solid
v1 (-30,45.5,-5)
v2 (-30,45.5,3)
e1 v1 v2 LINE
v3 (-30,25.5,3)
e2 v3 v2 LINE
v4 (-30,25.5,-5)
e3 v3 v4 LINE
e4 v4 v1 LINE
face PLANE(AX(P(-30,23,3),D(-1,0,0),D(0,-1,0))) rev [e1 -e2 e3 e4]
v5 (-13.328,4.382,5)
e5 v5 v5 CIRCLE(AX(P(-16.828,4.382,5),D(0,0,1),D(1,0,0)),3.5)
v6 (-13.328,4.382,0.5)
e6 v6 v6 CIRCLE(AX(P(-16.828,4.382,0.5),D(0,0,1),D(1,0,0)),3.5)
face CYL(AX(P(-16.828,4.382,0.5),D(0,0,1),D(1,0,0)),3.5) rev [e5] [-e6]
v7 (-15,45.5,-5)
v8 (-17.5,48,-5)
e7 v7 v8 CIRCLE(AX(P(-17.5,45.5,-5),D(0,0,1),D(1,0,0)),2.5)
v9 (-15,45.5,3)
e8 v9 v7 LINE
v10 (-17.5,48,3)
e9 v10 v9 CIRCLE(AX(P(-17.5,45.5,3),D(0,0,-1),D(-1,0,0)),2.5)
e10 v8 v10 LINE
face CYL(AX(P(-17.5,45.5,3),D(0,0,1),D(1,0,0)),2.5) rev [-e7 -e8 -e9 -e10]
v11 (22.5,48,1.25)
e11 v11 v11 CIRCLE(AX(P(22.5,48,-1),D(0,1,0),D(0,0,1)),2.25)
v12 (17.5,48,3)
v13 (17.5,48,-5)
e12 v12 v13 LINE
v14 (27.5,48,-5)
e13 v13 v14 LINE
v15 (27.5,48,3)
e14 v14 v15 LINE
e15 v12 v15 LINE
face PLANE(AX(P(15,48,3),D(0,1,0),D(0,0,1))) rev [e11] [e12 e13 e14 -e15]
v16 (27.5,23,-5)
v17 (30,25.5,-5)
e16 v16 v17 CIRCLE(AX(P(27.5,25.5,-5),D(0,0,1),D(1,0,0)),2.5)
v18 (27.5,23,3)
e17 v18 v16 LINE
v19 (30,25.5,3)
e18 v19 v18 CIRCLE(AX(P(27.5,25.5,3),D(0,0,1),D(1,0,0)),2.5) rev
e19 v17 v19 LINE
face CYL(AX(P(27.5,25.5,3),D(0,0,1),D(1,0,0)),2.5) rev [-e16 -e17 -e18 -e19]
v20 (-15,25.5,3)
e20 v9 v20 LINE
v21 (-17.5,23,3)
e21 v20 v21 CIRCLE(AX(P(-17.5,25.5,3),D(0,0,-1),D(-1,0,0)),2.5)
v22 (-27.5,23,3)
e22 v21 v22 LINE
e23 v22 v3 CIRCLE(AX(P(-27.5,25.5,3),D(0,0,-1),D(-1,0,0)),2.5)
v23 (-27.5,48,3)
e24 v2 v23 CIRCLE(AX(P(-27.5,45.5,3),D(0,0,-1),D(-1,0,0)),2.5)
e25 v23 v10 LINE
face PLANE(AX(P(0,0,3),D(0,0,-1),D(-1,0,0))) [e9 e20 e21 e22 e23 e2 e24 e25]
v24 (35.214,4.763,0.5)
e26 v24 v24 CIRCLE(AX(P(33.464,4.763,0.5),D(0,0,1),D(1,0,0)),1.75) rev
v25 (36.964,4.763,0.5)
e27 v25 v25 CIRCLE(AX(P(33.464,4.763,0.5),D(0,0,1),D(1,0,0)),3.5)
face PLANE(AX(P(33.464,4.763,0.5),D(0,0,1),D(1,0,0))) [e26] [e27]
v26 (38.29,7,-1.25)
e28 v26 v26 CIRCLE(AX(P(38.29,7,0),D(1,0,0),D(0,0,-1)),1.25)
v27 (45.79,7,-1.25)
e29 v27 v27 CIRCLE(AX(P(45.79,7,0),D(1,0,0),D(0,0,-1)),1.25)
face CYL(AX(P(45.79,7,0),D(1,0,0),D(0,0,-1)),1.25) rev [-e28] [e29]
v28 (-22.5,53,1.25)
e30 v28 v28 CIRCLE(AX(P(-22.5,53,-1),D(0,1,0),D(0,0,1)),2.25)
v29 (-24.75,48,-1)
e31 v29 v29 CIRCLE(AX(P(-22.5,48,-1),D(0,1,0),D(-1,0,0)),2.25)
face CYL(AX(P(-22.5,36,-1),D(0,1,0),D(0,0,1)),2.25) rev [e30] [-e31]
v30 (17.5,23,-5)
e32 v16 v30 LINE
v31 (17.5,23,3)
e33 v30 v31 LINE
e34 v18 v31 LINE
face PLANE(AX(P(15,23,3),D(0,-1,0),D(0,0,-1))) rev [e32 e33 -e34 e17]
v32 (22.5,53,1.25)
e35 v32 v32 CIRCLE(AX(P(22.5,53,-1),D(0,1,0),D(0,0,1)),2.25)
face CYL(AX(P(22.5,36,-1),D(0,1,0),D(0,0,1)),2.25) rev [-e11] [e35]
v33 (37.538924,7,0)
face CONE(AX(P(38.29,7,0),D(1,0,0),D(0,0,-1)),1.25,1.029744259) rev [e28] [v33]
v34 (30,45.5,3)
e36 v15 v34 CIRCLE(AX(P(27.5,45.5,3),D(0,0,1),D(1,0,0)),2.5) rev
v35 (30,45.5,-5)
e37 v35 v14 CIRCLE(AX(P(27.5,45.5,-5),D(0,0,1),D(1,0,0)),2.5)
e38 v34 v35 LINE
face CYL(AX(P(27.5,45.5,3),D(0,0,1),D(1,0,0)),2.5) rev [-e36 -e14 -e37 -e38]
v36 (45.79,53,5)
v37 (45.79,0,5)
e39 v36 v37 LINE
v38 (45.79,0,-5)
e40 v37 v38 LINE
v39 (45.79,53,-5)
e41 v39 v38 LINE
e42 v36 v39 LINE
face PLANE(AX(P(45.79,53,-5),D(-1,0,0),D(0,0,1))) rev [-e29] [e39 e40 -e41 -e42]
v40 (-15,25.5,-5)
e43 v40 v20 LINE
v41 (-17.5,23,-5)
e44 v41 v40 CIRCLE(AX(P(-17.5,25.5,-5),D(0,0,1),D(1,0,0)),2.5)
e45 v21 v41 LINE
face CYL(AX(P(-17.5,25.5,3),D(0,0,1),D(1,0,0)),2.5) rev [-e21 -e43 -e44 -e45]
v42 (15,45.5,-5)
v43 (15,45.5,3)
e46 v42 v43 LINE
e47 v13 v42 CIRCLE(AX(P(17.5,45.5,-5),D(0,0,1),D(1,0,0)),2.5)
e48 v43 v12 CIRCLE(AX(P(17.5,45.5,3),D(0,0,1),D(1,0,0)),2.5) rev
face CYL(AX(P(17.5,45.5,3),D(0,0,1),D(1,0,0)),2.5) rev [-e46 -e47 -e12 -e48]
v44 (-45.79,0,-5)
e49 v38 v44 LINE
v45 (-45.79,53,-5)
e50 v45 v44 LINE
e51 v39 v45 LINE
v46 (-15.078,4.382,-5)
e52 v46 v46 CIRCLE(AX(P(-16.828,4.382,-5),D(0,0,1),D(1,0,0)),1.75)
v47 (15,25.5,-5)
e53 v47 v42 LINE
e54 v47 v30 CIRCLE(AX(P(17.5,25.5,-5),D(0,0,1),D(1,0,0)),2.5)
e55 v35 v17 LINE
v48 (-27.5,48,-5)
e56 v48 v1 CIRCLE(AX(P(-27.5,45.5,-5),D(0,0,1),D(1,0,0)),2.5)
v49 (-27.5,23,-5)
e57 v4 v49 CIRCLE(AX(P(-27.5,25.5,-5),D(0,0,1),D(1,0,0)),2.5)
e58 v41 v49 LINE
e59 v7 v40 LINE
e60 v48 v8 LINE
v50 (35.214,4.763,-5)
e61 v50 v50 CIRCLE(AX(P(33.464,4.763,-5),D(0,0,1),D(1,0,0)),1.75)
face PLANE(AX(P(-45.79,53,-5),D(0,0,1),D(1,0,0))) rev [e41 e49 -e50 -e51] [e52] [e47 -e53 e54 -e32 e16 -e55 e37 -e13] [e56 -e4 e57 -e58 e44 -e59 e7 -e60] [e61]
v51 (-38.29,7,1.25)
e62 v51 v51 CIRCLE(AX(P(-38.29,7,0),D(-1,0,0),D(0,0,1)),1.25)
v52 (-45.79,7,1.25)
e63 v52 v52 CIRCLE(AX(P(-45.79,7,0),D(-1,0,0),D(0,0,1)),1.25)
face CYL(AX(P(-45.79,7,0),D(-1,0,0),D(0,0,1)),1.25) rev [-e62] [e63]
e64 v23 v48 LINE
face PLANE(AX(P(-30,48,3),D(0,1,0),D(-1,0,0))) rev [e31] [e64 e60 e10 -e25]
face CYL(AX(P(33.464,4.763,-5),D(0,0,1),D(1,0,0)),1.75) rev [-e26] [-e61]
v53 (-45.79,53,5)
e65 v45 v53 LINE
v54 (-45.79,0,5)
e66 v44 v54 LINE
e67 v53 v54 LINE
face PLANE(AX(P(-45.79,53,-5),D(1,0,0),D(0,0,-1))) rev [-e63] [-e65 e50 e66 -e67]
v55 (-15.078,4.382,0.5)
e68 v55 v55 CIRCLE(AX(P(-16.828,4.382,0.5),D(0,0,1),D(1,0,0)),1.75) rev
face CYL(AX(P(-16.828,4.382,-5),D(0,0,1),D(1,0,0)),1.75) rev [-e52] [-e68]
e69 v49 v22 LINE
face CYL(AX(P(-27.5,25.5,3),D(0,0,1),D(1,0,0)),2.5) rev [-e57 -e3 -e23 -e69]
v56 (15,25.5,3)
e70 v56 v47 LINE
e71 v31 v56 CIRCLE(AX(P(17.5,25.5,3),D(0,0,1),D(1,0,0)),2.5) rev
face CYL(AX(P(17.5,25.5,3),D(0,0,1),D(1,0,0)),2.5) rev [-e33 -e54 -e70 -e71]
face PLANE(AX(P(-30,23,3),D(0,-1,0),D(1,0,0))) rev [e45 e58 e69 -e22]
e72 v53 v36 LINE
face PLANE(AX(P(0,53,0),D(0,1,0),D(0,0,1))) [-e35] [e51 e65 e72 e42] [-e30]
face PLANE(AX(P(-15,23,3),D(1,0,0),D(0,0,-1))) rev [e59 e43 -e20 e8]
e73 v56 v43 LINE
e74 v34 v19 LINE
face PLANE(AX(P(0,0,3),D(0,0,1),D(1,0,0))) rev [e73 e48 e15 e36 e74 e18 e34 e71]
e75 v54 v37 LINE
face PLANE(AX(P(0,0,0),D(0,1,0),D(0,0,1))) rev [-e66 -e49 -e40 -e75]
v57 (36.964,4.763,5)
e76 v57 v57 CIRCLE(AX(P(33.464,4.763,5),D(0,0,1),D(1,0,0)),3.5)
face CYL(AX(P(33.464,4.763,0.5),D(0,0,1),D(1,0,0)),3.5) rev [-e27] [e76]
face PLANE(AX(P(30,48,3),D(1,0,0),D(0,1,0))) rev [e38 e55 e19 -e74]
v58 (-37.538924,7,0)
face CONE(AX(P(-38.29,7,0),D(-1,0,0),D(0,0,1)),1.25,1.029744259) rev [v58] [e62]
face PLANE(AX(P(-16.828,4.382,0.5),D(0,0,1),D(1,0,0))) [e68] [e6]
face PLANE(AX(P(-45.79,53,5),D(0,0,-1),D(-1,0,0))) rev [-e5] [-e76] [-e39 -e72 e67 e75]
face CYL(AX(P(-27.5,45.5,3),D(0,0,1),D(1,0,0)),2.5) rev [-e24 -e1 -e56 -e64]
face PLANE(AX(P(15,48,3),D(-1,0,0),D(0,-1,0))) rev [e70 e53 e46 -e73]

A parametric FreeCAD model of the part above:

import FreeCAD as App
import Part
import Sketcher
Q = App.Units.Quantity


def edges_at(feature, points):
    """Names of the edges that pass closest to the given points."""
    edges = feature.Shape.Edges
    near = lambda p: min(range(len(edges)), key=lambda i: edges[i].distToShape(Part.Vertex(*p))[0])
    return sorted({f"Edge{near(p) + 1}" for p in points})

doc = App.newDocument("Part")
body = doc.addObject("PartDesign::Body", "Body")

# Sketch on XZ plane
sketch1 = body.newObject("Sketcher::SketchObject", "Sketch")
sketch1.AttachmentSupport = (doc.getObject("XZ_Plane"), [""])
sketch1.MapMode = "FlatFace"
sketch1.addGeometry([
    Part.LineSegment(App.Vector(-46, -5, 0), App.Vector(-46, 5, 0)),
    Part.LineSegment(App.Vector(-46, 5, 0), App.Vector(46, 5, 0)),
    Part.LineSegment(App.Vector(46, 5, 0), App.Vector(46, -5, 0)),
    Part.LineSegment(App.Vector(46, -5, 0), App.Vector(-46, -5, 0)),
], False)
sketch1.addConstraint([
    Sketcher.Constraint("Coincident", 0, 2, 1, 1),
    Sketcher.Constraint("Coincident", 1, 2, 2, 1),
    Sketcher.Constraint("Coincident", 2, 2, 3, 1),
    Sketcher.Constraint("Coincident", 3, 2, 0, 1),
    Sketcher.Constraint("Vertical", 0),
    Sketcher.Constraint("Horizontal", 1),
    Sketcher.Constraint("Vertical", 2),
    Sketcher.Constraint("Horizontal", 3),
    Sketcher.Constraint("Symmetric", 0, 2, 2, 2, -1, 1),
    Sketcher.Constraint("DistanceY", 0, 1, 0, 2, Q("10 mm")),
    Sketcher.Constraint("DistanceX", 1, 1, 1, 2, Q("91.58 mm")),
])
pad1 = body.newObject("PartDesign::Pad", "Pad")
pad1.Profile = sketch1
pad1.Length = 53
pad1.Reversed = True

# Sketch on XY plane
sketch2 = body.newObject("Sketcher::SketchObject", "Sketch001")
sketch2.AttachmentSupport = (doc.getObject("XY_Plane"), [""])
sketch2.MapMode = "FlatFace"
sketch2.AttachmentOffset = App.Placement(App.Vector(0, 0, 5), App.Rotation())
sketch2.addGeometry([
    Part.Circle(App.Vector(33.5, 4.8, 0), App.Vector(0, 0, 1), 1.8),
    Part.Circle(App.Vector(-16.8, 4.4, 0), App.Vector(0, 0, 1), 1.8),
], False)
sketch2.addConstraint([
    Sketcher.Constraint("Equal", 0, 1),
    Sketcher.Constraint("Diameter", 0, Q("3.5 mm")),
    Sketcher.Constraint("DistanceX", -1, 1, 0, 3, Q("33.464 mm")),
    Sketcher.Constraint("DistanceY", -1, 1, 0, 3, Q("4.763 mm")),
    Sketcher.Constraint("DistanceX", 1, 3, -1, 1, Q("16.828 mm")),
    Sketcher.Constraint("DistanceY", -1, 1, 1, 3, Q("4.382 mm")),
])
pocket1 = body.newObject("PartDesign::Pocket", "Pocket")
pocket1.Profile = sketch2
pocket1.Type = "ThroughAll"

# Sketch on XY plane
sketch3 = body.newObject("Sketcher::SketchObject", "Sketch002")
sketch3.AttachmentSupport = (doc.getObject("XY_Plane"), [""])
sketch3.MapMode = "FlatFace"
sketch3.AttachmentOffset = App.Placement(App.Vector(0, 0, -5), App.Rotation())
sketch3.addGeometry([
    Part.LineSegment(App.Vector(-15, 48, 0), App.Vector(-15, 23, 0)),  # 0
    Part.LineSegment(App.Vector(-15, 23, 0), App.Vector(-30, 23, 0)),  # 1
    Part.LineSegment(App.Vector(-30, 23, 0), App.Vector(-30, 48, 0)),  # 2
    Part.LineSegment(App.Vector(-30, 48, 0), App.Vector(-15, 48, 0)),  # 3
    Part.LineSegment(App.Vector(30, 48, 0), App.Vector(30, 23, 0)),  # 4
    Part.LineSegment(App.Vector(30, 23, 0), App.Vector(15, 23, 0)),  # 5
    Part.LineSegment(App.Vector(15, 23, 0), App.Vector(15, 48, 0)),  # 6
    Part.LineSegment(App.Vector(15, 48, 0), App.Vector(30, 48, 0)),  # 7
], False)
sketch3.addConstraint([
    Sketcher.Constraint("Coincident", 0, 2, 1, 1),
    Sketcher.Constraint("Coincident", 1, 2, 2, 1),
    Sketcher.Constraint("Coincident", 2, 2, 3, 1),
    Sketcher.Constraint("Coincident", 3, 2, 0, 1),
    Sketcher.Constraint("Coincident", 4, 2, 5, 1),
    Sketcher.Constraint("Coincident", 5, 2, 6, 1),
    Sketcher.Constraint("Coincident", 6, 2, 7, 1),
    Sketcher.Constraint("Coincident", 7, 2, 4, 1),
    Sketcher.Constraint("Vertical", 0),
    Sketcher.Constraint("Horizontal", 1),
    Sketcher.Constraint("Vertical", 2),
    Sketcher.Constraint("Horizontal", 3),
    Sketcher.Constraint("Vertical", 4),
    Sketcher.Constraint("Horizontal", 5),
    Sketcher.Constraint("Vertical", 6),
    Sketcher.Constraint("Horizontal", 7),
    Sketcher.Constraint("Symmetric", 1, 2, 4, 2, -2),
    Sketcher.Constraint("Symmetric", 3, 2, 6, 2, -2),
    Sketcher.Constraint("DistanceX", 1, 2, 1, 1, Q("15 mm")),
    Sketcher.Constraint("DistanceY", 0, 2, 0, 1, Q("25 mm")),
    Sketcher.Constraint("DistanceX", 0, 2, -1, 1, Q("15 mm")),
    Sketcher.Constraint("DistanceY", -1, 1, 0, 2, Q("23 mm")),
])
pocket2 = body.newObject("PartDesign::Pocket", "Pocket001")
pocket2.Profile = sketch3
pocket2.Length = 8
pocket2.Reversed = True

# Sketch on XZ plane
sketch4 = body.newObject("Sketcher::SketchObject", "Sketch003")
sketch4.AttachmentSupport = (doc.getObject("XZ_Plane"), [""])
sketch4.MapMode = "FlatFace"
sketch4.AttachmentOffset = App.Placement(App.Vector(0, 0, -53), App.Rotation())
sketch4.addGeometry([
    Part.Circle(App.Vector(22.5, -1, 0), App.Vector(0, 0, 1), 2.2),
    Part.Circle(App.Vector(-22.5, -1, 0), App.Vector(0, 0, 1), 2.2),
], False)
sketch4.addConstraint([
    Sketcher.Constraint("Equal", 0, 1),
    Sketcher.Constraint("Symmetric", 0, 3, 1, 3, -2),
    Sketcher.Constraint("Diameter", 0, Q("4.5 mm")),
    Sketcher.Constraint("DistanceY", 0, 3, -1, 1, Q("1 mm")),
    Sketcher.Constraint("DistanceX", 1, 3, 0, 3, Q("45 mm")),
])
pocket3 = body.newObject("PartDesign::Pocket", "Pocket002")
pocket3.Profile = sketch4
pocket3.Length = 17
pocket3.Reversed = True

# Sketch on XY plane
sketch5 = body.newObject("Sketcher::SketchObject", "Sketch004")
sketch5.AttachmentSupport = (doc.getObject("XY_Plane"), [""])
sketch5.MapMode = "FlatFace"
sketch5.AttachmentOffset = App.Placement(App.Vector(0, 0, 5), App.Rotation())
sketch5.addGeometry([
    Part.Circle(App.Vector(33.5, 4.8, 0), App.Vector(0, 0, 1), 3.5),
    Part.Circle(App.Vector(-16.8, 4.4, 0), App.Vector(0, 0, 1), 3.5),
], False)
sketch5.addConstraint([
    Sketcher.Constraint("Equal", 0, 1),
    Sketcher.Constraint("Diameter", 0, Q("7 mm")),
    Sketcher.Constraint("DistanceX", -1, 1, 0, 3, Q("33.464 mm")),
    Sketcher.Constraint("DistanceY", -1, 1, 0, 3, Q("4.763 mm")),
    Sketcher.Constraint("DistanceX", 1, 3, -1, 1, Q("16.828 mm")),
    Sketcher.Constraint("DistanceY", -1, 1, 1, 3, Q("4.382 mm")),
])
pocket4 = body.newObject("PartDesign::Pocket", "Pocket003")
pocket4.Profile = sketch5
pocket4.Length = 4.5

# Sketch on XZ plane
sketch6 = body.newObject("Sketcher::SketchObject", "Sketch005")
sketch6.AttachmentSupport = (doc.getObject("XZ_Plane"), [""])
sketch6.MapMode = "FlatFace"
sketch6.AttachmentOffset = App.Placement(App.Vector(0, 0, -7), App.Rotation())
sketch6.addGeometry([
    Part.LineSegment(App.Vector(-37.5, 0, 0), App.Vector(-45.8, 0, 0)),
    Part.LineSegment(App.Vector(-45.8, 0, 0), App.Vector(-45.8, 1.2, 0)),
    Part.LineSegment(App.Vector(-45.8, 1.2, 0), App.Vector(-38.3, 1.2, 0)),
    Part.LineSegment(App.Vector(-38.3, 1.2, 0), App.Vector(-37.5, 0, 0)),
], False)
sketch6.addConstraint([
    Sketcher.Constraint("Coincident", 0, 2, 1, 1),
    Sketcher.Constraint("Coincident", 1, 2, 2, 1),
    Sketcher.Constraint("Coincident", 2, 2, 3, 1),
    Sketcher.Constraint("Coincident", 3, 2, 0, 1),
    Sketcher.Constraint("Horizontal", 0),
    Sketcher.Constraint("Vertical", 1),
    Sketcher.Constraint("Horizontal", 2),
    Sketcher.Constraint("PointOnObject", 0, 2, -1),
    Sketcher.Constraint("Angle", 3, Q("-59 deg")),
    Sketcher.Constraint("DistanceX", 2, 1, 2, 2, Q("7.5 mm")),
    Sketcher.Constraint("DistanceY", 1, 1, 1, 2, Q("1.25 mm")),
    Sketcher.Constraint("DistanceX", 0, 2, -1, 1, Q("45.79 mm")),
])
groove = body.newObject("PartDesign::Groove", "Groove")
groove.Profile = sketch6
groove.ReferenceAxis = (sketch6, ["H_Axis"])
groove.Angle = 360
doc.recompute()

mirrored = body.newObject("PartDesign::Mirrored", "Mirrored")
mirrored.Originals = [groove]
mirrored.MirrorPlane = (doc.getObject("YZ_Plane"), [""])
body.Tip = mirrored
doc.recompute()

fillet = body.newObject("PartDesign::Fillet", "Fillet")
fillet.Base = (mirrored, edges_at(mirrored, [
    (-30, 48, -1),
    (-30, 23, -1),
    (-15, 23, -1),
    (-15, 48, -1),
    (15, 48, -1),
    (15, 23, -1),
    (30, 23, -1),
    (30, 48, -1),
]))
fillet.Radius = 2.5

doc.recompute()
